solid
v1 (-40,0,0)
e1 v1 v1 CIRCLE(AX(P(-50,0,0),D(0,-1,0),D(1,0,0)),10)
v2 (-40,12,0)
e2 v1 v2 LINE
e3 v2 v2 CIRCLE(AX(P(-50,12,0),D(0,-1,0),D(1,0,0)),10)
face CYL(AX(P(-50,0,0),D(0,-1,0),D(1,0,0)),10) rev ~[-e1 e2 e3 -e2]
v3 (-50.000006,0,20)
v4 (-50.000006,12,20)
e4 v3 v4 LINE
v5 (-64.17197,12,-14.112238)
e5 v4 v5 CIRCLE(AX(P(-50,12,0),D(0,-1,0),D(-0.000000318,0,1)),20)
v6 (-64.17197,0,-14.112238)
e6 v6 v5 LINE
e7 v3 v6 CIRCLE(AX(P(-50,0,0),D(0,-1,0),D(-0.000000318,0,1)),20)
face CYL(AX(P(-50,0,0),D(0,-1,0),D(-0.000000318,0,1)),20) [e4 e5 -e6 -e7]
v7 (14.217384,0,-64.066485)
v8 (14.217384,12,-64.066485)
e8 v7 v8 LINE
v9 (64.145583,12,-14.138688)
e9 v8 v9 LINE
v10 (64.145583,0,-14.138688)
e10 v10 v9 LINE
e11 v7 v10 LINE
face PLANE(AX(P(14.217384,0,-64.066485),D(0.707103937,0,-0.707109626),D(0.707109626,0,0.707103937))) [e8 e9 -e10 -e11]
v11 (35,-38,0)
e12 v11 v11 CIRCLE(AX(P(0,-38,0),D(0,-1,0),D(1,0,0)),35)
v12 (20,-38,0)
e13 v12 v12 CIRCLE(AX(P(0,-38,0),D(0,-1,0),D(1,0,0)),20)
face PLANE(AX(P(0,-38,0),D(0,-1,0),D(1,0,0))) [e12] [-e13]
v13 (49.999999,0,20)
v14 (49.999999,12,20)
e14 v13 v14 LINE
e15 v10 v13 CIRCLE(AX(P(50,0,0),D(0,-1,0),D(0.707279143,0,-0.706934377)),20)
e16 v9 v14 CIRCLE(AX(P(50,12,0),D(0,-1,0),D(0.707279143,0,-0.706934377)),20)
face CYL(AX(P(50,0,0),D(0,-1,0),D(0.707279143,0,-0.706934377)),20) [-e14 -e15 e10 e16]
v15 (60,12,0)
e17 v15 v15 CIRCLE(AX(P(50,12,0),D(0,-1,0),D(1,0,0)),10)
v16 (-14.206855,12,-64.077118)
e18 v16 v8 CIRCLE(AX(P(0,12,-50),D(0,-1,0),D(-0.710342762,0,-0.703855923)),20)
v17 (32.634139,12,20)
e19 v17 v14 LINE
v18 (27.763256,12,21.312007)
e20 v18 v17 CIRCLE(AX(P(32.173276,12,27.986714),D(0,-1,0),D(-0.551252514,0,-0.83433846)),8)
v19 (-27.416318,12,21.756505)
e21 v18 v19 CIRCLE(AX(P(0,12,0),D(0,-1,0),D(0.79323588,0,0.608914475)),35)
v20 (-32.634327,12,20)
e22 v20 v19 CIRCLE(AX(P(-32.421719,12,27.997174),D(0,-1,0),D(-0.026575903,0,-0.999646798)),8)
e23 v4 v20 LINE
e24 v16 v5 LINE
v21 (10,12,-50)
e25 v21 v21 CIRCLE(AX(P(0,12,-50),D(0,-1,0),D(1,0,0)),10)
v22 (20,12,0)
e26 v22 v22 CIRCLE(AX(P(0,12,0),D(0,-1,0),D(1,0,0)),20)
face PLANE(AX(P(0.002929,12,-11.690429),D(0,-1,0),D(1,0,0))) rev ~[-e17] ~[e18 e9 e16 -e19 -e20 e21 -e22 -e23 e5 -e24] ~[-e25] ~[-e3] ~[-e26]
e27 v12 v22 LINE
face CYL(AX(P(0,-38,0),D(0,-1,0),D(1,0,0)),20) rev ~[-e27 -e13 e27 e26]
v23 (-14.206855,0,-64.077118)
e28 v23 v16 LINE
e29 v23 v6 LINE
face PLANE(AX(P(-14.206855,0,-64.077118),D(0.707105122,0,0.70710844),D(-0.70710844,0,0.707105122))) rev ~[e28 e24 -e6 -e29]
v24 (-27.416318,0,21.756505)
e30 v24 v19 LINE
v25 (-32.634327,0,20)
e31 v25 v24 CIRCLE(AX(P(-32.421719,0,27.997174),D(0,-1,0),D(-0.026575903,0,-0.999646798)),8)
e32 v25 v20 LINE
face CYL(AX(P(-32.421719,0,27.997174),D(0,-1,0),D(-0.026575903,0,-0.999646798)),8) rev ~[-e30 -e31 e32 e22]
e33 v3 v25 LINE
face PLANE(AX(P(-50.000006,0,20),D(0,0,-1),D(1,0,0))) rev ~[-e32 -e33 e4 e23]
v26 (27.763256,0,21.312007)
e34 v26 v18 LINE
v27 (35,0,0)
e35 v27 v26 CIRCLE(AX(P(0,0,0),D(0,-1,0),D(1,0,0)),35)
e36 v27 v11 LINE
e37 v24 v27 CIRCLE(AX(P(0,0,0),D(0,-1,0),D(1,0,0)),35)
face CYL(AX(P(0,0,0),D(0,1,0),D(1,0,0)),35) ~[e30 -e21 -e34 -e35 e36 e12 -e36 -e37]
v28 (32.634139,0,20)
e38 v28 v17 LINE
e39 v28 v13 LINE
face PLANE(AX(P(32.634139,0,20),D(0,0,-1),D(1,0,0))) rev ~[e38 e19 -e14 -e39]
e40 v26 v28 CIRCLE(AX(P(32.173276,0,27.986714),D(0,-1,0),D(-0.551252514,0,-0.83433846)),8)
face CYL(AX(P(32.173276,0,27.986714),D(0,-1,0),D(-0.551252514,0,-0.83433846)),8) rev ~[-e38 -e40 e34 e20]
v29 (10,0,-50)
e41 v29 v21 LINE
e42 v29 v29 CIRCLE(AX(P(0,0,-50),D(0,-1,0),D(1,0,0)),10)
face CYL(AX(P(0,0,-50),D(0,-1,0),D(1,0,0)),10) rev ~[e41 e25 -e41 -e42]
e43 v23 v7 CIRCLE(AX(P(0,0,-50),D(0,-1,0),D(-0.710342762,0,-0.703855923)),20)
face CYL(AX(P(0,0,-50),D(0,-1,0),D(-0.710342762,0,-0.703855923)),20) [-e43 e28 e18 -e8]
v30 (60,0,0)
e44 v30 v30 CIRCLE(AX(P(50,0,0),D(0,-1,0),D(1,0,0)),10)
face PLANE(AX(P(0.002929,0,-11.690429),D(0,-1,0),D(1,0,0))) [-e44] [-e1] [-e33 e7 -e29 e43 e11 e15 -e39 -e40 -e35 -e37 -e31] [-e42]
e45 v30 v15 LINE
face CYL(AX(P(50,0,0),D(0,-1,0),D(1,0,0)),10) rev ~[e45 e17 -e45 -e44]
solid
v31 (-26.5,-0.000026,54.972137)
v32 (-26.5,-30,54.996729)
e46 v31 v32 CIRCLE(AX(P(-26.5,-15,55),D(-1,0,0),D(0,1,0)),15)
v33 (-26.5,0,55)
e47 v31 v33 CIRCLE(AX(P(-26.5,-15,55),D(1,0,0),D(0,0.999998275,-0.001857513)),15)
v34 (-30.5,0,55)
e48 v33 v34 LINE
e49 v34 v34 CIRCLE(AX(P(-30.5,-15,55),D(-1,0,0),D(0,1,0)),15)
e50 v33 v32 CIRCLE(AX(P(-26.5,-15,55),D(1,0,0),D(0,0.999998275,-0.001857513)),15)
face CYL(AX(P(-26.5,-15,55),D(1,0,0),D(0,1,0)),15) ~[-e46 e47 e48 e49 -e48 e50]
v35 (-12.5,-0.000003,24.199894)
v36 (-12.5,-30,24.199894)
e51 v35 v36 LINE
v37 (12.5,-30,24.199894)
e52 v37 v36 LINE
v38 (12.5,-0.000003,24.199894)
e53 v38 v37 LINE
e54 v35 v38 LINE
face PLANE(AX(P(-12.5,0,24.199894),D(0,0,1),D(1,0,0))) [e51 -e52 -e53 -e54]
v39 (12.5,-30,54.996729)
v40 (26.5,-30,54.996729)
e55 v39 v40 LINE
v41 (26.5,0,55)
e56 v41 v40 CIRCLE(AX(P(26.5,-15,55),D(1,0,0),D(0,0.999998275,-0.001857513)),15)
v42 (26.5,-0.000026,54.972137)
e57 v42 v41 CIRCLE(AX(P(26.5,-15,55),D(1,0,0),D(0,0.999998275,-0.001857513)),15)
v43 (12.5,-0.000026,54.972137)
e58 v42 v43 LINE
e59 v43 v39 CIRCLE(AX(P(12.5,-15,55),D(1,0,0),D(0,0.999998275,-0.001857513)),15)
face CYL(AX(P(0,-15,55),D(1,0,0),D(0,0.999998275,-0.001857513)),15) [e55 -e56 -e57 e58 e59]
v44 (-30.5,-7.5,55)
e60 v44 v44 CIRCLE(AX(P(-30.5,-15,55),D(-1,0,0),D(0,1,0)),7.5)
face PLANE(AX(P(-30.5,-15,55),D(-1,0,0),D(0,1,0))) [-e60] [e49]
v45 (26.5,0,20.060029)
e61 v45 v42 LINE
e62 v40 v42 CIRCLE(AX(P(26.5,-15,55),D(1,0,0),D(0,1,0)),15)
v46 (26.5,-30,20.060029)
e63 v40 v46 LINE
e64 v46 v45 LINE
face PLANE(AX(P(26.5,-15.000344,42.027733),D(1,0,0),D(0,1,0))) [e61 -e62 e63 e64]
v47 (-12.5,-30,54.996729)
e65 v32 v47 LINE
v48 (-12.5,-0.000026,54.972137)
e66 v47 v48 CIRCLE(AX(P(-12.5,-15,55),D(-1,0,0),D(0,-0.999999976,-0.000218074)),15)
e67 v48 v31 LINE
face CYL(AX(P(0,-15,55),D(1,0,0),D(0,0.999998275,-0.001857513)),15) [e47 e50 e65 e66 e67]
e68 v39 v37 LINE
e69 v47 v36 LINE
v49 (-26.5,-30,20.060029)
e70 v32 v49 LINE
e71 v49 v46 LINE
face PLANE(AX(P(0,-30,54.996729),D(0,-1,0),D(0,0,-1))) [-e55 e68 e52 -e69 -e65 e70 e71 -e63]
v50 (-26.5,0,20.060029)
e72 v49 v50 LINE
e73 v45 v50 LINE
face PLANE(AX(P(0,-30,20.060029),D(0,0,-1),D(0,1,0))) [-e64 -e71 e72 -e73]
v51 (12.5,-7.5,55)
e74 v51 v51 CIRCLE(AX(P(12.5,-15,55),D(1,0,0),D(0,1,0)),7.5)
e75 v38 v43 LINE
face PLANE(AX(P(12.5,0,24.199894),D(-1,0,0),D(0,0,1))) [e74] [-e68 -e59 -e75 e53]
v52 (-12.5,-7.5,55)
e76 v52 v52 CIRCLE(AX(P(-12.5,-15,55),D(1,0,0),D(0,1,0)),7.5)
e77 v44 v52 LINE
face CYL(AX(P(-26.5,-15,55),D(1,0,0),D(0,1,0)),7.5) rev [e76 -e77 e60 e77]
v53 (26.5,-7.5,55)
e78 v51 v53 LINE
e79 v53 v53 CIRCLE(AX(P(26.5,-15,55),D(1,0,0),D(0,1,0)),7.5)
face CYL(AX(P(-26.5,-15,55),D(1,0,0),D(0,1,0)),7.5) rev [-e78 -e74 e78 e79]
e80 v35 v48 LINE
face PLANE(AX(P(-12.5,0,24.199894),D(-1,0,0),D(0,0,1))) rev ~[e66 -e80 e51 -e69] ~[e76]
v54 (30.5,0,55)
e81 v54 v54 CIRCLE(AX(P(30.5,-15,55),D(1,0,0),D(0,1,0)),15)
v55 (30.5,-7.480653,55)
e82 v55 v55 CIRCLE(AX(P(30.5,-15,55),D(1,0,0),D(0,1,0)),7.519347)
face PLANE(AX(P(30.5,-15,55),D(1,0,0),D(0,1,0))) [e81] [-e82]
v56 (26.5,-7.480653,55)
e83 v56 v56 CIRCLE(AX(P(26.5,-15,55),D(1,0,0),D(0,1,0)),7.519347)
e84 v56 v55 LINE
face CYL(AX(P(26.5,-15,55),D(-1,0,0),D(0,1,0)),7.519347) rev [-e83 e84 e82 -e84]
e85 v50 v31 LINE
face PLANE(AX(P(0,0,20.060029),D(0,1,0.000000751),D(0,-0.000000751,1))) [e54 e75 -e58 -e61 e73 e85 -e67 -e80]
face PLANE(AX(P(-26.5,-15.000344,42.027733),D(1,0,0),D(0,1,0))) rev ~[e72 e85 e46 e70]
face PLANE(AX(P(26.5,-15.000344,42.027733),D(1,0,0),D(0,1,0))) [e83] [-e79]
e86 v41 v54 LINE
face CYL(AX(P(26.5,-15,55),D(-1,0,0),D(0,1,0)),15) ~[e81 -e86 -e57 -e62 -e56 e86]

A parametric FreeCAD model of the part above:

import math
import FreeCAD as App
import Part
import Sketcher
from FreeCAD import Vector
Q = App.Units.Quantity

doc = App.newDocument("Part")
body = doc.addObject("PartDesign::Body", "Body")

# Sketch on XZ plane
sketch1 = body.newObject("Sketcher::SketchObject", "Sketch")
sketch1.AttachmentSupport = (doc.getObject("XZ_Plane"), [""])
sketch1.MapMode = "FlatFace"
sketch1.addGeometry([
    Part.ArcOfCircle(Part.Circle(Vector(50, 0, 0), Vector(0, 0, 1), 20), math.radians(-45), math.radians(90)),  # 0
    Part.LineSegment(Vector(50, 20, 0), Vector(33, 20, 0)),  # 1
    Part.ArcOfCircle(Part.Circle(Vector(32, 28, 0), Vector(0, 0, 1), 8), math.radians(-123), math.radians(-87)),  # 2
    Part.ArcOfCircle(Part.Circle(Vector(0, 0, 0), Vector(0, 0, 1), 35), math.radians(38), math.radians(142)),  # 3
    Part.ArcOfCircle(Part.Circle(Vector(-32, 28, 0), Vector(0, 0, 1), 8), math.radians(-92), math.radians(-51)),  # 4
    Part.LineSegment(Vector(-33, 20, 0), Vector(-50, 20, 0)),  # 5
    Part.ArcOfCircle(Part.Circle(Vector(-50, 0, 0), Vector(0, 0, 1), 20), math.radians(90), math.radians(225)),  # 6
    Part.LineSegment(Vector(-64, -14, 0), Vector(-14, -64, 0)),  # 7
    Part.ArcOfCircle(Part.Circle(Vector(0, -50, 0), Vector(0, 0, 1), 20), math.radians(-135), math.radians(-45)),  # 8
    Part.LineSegment(Vector(14, -64, 0), Vector(64, -14, 0)),  # 9
    Part.Circle(Vector(0, -50, 0), Vector(0, 0, 1), 10),  # 10
    Part.Circle(Vector(-50, 0, 0), Vector(0, 0, 1), 10),  # 11
    Part.Circle(Vector(50, 0, 0), Vector(0, 0, 1), 10),  # 12
], False)
sketch1.addConstraint([
    Sketcher.Constraint("Tangent", 0, 2, 1, 1),
    Sketcher.Constraint("Coincident", 1, 2, 2, 2),
    Sketcher.Constraint("Coincident", 2, 1, 3, 1),
    Sketcher.Constraint("Coincident", 3, 2, 4, 2),
    Sketcher.Constraint("Coincident", 4, 1, 5, 1),
    Sketcher.Constraint("Tangent", 5, 2, 6, 1),
    Sketcher.Constraint("Coincident", 6, 2, 7, 1),
    Sketcher.Constraint("Coincident", 7, 2, 8, 1),
    Sketcher.Constraint("Coincident", 8, 2, 9, 1),
    Sketcher.Constraint("Coincident", 9, 2, 0, 1),
    Sketcher.Constraint("Horizontal", 1),
    Sketcher.Constraint("Horizontal", 5),
    Sketcher.Constraint("Coincident", 3, 3, -1, 1),
    Sketcher.Constraint("Coincident", 10, 3, 8, 3),
    Sketcher.Constraint("Coincident", 11, 3, 6, 3),
    Sketcher.Constraint("Coincident", 12, 3, 0, 3),
    Sketcher.Constraint("Equal", 2, 4),
    Sketcher.Constraint("Equal", 0, 6),
    Sketcher.Constraint("Equal", 6, 8),
    Sketcher.Constraint("Equal", 10, 11),
    Sketcher.Constraint("Equal", 11, 12),
    Sketcher.Constraint("Symmetric", 0, 3, 6, 3, -1, 1),
    Sketcher.Constraint("PointOnObject", 0, 3, -1),
    Sketcher.Constraint("PointOnObject", 8, 3, -2),
    Sketcher.Constraint("Diameter", 10, Q("20 mm")),
    Sketcher.Constraint("Radius", 0, Q("20 mm")),
    Sketcher.Constraint("Radius", 2, Q("8 mm")),
    Sketcher.Constraint("Radius", 3, Q("35 mm")),
    Sketcher.Constraint("DistanceX", -1, 1, 0, 3, Q("50 mm")),
    Sketcher.Constraint("DistanceY", 8, 3, -1, 1, Q("50 mm")),
    Sketcher.Constraint("DistanceX", 1, 2, 1, 1, Q("17.365861 mm")),
    Sketcher.Constraint("DistanceX", 5, 2, 5, 1, Q("17.36568 mm")),
    Sketcher.Constraint("DistanceX", 4, 3, 3, 2, Q("5.005401 mm")),
    Sketcher.Constraint("DistanceY", 2, 1, 3, 2, Q("0.444498 mm")),
    Sketcher.Constraint("DistanceX", 6, 2, -1, 1, Q("64.17197 mm")),
    Sketcher.Constraint("DistanceY", 7, 2, -1, 1, Q("64.077118 mm")),
    Sketcher.Constraint("DistanceX", 7, 2, 8, 2, Q("28.424239 mm")),
    Sketcher.Constraint("Distance", 9, Q("70.608852 mm")),
])
pad1 = body.newObject("PartDesign::Pad", "Pad")
pad1.Profile = sketch1
pad1.Length = 12
pad1.Reversed = True

# Sketch on XZ plane
sketch2 = body.newObject("Sketcher::SketchObject", "Sketch001")
sketch2.AttachmentSupport = (doc.getObject("XZ_Plane"), [""])
sketch2.MapMode = "FlatFace"
sketch2.addGeometry(Part.Circle(Vector(0, 0, 0), Vector(0, 0, 1), 35), False)
sketch2.addConstraint([
    Sketcher.Constraint("Coincident", 0, 3, -1, 1),
    Sketcher.Constraint("Diameter", 0, Q("70 mm")),
])
pad2 = body.newObject("PartDesign::Pad", "Pad001")
pad2.Profile = sketch2
pad2.Length = 38

# Sketch on XZ plane
sketch3 = body.newObject("Sketcher::SketchObject", "Sketch002")
sketch3.AttachmentSupport = (doc.getObject("XZ_Plane"), [""])
sketch3.MapMode = "FlatFace"
sketch3.AttachmentOffset = App.Placement(Vector(0, 0, 38), App.Rotation())
sketch3.addGeometry(Part.Circle(Vector(0, 0, 0), Vector(0, 0, 1), 20), False)
sketch3.addConstraint([
    Sketcher.Constraint("Coincident", 0, 3, -1, 1),
    Sketcher.Constraint("Diameter", 0, Q("40 mm")),
])
pocket1 = body.newObject("PartDesign::Pocket", "Pocket")
pocket1.Profile = sketch3
pocket1.Type = "ThroughAll"
body2 = doc.addObject("PartDesign::Body", "Body001")

# Sketch on XZ plane
sketch4 = body2.newObject("Sketcher::SketchObject", "Sketch003")
sketch4.AttachmentSupport = (doc.getObject("XZ_Plane001"), [""])
sketch4.MapMode = "FlatFace"
sketch4.addGeometry([
    Part.LineSegment(Vector(-12, 92, 0), Vector(-12, 24, 0)),
    Part.LineSegment(Vector(-12, 24, 0), Vector(12, 24, 0)),
    Part.LineSegment(Vector(12, 24, 0), Vector(12, 92, 0)),
    Part.LineSegment(Vector(12, 92, 0), Vector(-12, 92, 0)),
], False)
sketch4.addConstraint([
    Sketcher.Constraint("Coincident", 0, 2, 1, 1),
    Sketcher.Constraint("Coincident", 1, 2, 2, 1),
    Sketcher.Constraint("Coincident", 2, 2, 3, 1),
    Sketcher.Constraint("Coincident", 3, 2, 0, 1),
    Sketcher.Constraint("Vertical", 0),
    Sketcher.Constraint("Horizontal", 1),
    Sketcher.Constraint("Vertical", 2),
    Sketcher.Constraint("Horizontal", 3),
    Sketcher.Constraint("DistanceX", 1, 1, 1, 2, Q("25 mm")),
    Sketcher.Constraint("DistanceX", 0, 2, -1, 1, Q("12.5 mm")),
    Sketcher.Constraint("DistanceY", 0, 2, 0, 1, Q("67.86781 mm")),
    Sketcher.Constraint("DistanceY", -1, 1, 0, 2, Q("24.199894 mm")),
])
pad3 = body2.newObject("PartDesign::Pad", "Pad002")
pad3.Profile = sketch4
pad3.Length = 35
body3 = doc.addObject("PartDesign::Body", "Body002")

# Sketch on YZ plane
sketch5 = body3.newObject("Sketcher::SketchObject", "Sketch004")
sketch5.AttachmentSupport = (doc.getObject("YZ_Plane002"), [""])
sketch5.MapMode = "FlatFace"
sketch5.addGeometry([
    Part.ArcOfCircle(Part.Circle(Vector(-15, 55, 0), Vector(0, 0, 1), 15), math.radians(0), math.radians(180)),  # 0
    Part.LineSegment(Vector(-30, 55, 0), Vector(-30, 20, 0)),  # 1
    Part.LineSegment(Vector(-30, 20, 0), Vector(0, 20, 0)),  # 2
    Part.LineSegment(Vector(0, 20, 0), Vector(0, 55, 0)),  # 3
    Part.Circle(Vector(-15, 55, 0), Vector(0, 0, 1), 8),  # 4
], False)
sketch5.addConstraint([
    Sketcher.Constraint("Coincident", 0, 2, 1, 1),
    Sketcher.Constraint("Coincident", 1, 2, 2, 1),
    Sketcher.Constraint("Coincident", 2, 2, 3, 1),
    Sketcher.Constraint("Coincident", 3, 2, 0, 1),
    Sketcher.Constraint("Vertical", 1),
    Sketcher.Constraint("Horizontal", 2),
    Sketcher.Constraint("Coincident", 4, 3, 0, 3),
    Sketcher.Constraint("PointOnObject", 2, 2, -2),
    Sketcher.Constraint("Diameter", 4, Q("15 mm")),
    Sketcher.Constraint("Radius", 0, Q("15 mm")),
    Sketcher.Constraint("DistanceX", 2, 1, 2, 2, Q("30 mm")),
    Sketcher.Constraint("DistanceY", -1, 1, 0, 3, Q("55 mm")),
    Sketcher.Constraint("DistanceY", 1, 2, 1, 1, Q("34.9367 mm")),
    Sketcher.Constraint("Distance", 3, Q("34.912108 mm")),
    Sketcher.Constraint("DistanceY", -1, 1, 0, 2, Q("54.996729 mm")),
])
pad4 = body3.newObject("PartDesign::Pad", "Pad003")
pad4.Profile = sketch5
pad4.Length = 53
pad4.Midplane = True

# Sketch on YZ plane
sketch6 = body3.newObject("Sketcher::SketchObject", "Sketch005")
sketch6.AttachmentSupport = (doc.getObject("YZ_Plane002"), [""])
sketch6.MapMode = "FlatFace"
sketch6.AttachmentOffset = App.Placement(Vector(0, 0, 26.5), App.Rotation())
sketch6.addGeometry([
    Part.Circle(Vector(-15, 55, 0), Vector(0, 0, 1), 15),
    Part.Circle(Vector(-15, 55, 0), Vector(0, 0, 1), 8),
], False)
sketch6.addConstraint([
    Sketcher.Constraint("Coincident", 1, 3, 0, 3),
    Sketcher.Constraint("Diameter", 0, Q("30 mm")),
    Sketcher.Constraint("DistanceX", 0, 3, -1, 1, Q("15 mm")),
    Sketcher.Constraint("DistanceY", -1, 1, 0, 3, Q("55 mm")),
    Sketcher.Constraint("Diameter", 1, Q("15.038694 mm")),
])
pad5 = body3.newObject("PartDesign::Pad", "Pad004")
pad5.Profile = sketch6
pad5.Length = 4

# Sketch on YZ plane
sketch7 = body3.newObject("Sketcher::SketchObject", "Sketch006")
sketch7.AttachmentSupport = (doc.getObject("YZ_Plane002"), [""])
sketch7.MapMode = "FlatFace"
sketch7.AttachmentOffset = App.Placement(Vector(0, 0, -26.5), App.Rotation())
sketch7.addGeometry([
    Part.Circle(Vector(-15, 55, 0), Vector(0, 0, 1), 15),
    Part.Circle(Vector(-15, 55, 0), Vector(0, 0, 1), 8),
], False)
sketch7.addConstraint([
    Sketcher.Constraint("Coincident", 1, 3, 0, 3),
    Sketcher.Constraint("Diameter", 0, Q("30 mm")),
    Sketcher.Constraint("Diameter", 1, Q("15 mm")),
    Sketcher.Constraint("DistanceX", 0, 3, -1, 1, Q("15 mm")),
    Sketcher.Constraint("DistanceY", -1, 1, 0, 3, Q("55 mm")),
])
pad6 = body3.newObject("PartDesign::Pad", "Pad005")
pad6.Profile = sketch7
pad6.Length = 4
pad6.Reversed = True
doc.recompute()

boolean = body3.newObject("PartDesign::Boolean", "Boolean")
boolean.Type = "Cut"
boolean.addObjects([body2])

doc.recompute()
